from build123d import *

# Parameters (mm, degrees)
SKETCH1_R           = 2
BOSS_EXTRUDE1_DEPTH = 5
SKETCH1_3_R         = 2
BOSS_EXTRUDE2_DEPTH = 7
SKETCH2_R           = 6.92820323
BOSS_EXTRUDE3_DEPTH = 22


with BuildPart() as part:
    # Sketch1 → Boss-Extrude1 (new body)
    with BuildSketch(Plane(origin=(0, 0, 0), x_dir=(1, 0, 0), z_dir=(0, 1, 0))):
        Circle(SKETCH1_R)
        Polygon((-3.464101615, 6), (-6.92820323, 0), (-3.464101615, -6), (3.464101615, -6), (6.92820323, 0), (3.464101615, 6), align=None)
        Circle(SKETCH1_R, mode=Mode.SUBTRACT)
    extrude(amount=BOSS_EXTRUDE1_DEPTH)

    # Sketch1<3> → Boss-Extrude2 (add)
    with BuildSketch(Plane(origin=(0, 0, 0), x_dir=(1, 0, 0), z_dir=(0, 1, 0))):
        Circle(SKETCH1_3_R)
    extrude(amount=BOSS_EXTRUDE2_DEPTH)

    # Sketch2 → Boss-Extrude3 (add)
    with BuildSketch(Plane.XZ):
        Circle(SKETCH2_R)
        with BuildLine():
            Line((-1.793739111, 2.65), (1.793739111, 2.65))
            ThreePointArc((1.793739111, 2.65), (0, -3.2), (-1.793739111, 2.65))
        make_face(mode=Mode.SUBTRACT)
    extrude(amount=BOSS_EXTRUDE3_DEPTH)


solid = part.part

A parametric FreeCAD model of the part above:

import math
import FreeCAD as App
import Part
import Sketcher
Q = App.Units.Quantity


def add_polygon(sketch, points):
    """Adds a closed chain of lines whose ends are joined by coincident constraints."""
    first, n = sketch.GeometryCount, len(points)
    for a, b in zip(points, points[1:] + points[:1]):
        sketch.addGeometry(Part.LineSegment(App.Vector(*a, 0), App.Vector(*b, 0)), False)
    for i in range(n):
        sketch.addConstraint(Sketcher.Constraint("Coincident", first + i, 2, first + (i + 1) % n, 1))

doc = App.newDocument("Part")
body = doc.addObject("PartDesign::Body", "Body")

# Sketch on XZ plane
sketch1 = body.newObject("Sketcher::SketchObject", "Sketch")
sketch1.AttachmentSupport = (doc.getObject("XZ_Plane"), [""])
sketch1.MapMode = "FlatFace"
add_polygon(sketch1, [(-3.5, -6), (-6.9, 0), (-3.5, 6), (3.5, 6), (6.9, 0), (3.5, -6)])  # lines 0-5
sketch1.addGeometry(Part.Circle(App.Vector(0, 0, 0), App.Vector(0, 0, 1), 2), False)  # 6
sketch1.addConstraint(Sketcher.Constraint("Horizontal", 2))
sketch1.addConstraint(Sketcher.Constraint("Horizontal", 5))
sketch1.addConstraint(Sketcher.Constraint("Coincident", 6, 3, -1, 1))
sketch1.addConstraint(Sketcher.Constraint("Symmetric", 0, 2, 3, 2, -1, 1))
sketch1.addConstraint(Sketcher.Constraint("Symmetric", 1, 2, 4, 2, -1, 1))
sketch1.addConstraint(Sketcher.Constraint("PointOnObject", 0, 2, -1))
sketch1.addConstraint(Sketcher.Constraint("Parallel", 0, 3))
sketch1.addConstraint(Sketcher.Constraint("Vertical", 2, 2, 4, 2))
sketch1.addConstraint(Sketcher.Constraint("Diameter", 6, Q("4 mm")))
sketch1.addConstraint(Sketcher.Constraint("Angle", 0, Q("120 deg")))
sketch1.addConstraint(Sketcher.Constraint("DistanceY", -1, 1, 1, 2, Q("6 mm")))
sketch1.addConstraint(Sketcher.Constraint("DistanceX", 1, 2, -1, 1, Q("3.464102 mm")))
pad1 = body.newObject("PartDesign::Pad", "Pad")
pad1.Profile = sketch1
pad1.Length = 5
pad1.Reversed = True

# Sketch on XZ plane
sketch2 = body.newObject("Sketcher::SketchObject", "Sketch001")
sketch2.AttachmentSupport = (doc.getObject("XZ_Plane"), [""])
sketch2.MapMode = "FlatFace"
sketch2.addGeometry(Part.Circle(App.Vector(0, 0, 0), App.Vector(0, 0, 1), 2), False)
sketch2.addConstraint(Sketcher.Constraint("Coincident", 0, 3, -1, 1))
sketch2.addConstraint(Sketcher.Constraint("Diameter", 0, Q("4 mm")))
pad2 = body.newObject("PartDesign::Pad", "Pad001")
pad2.Profile = sketch2
pad2.Length = 7
pad2.Reversed = True

# Sketch on XZ plane
sketch3 = body.newObject("Sketcher::SketchObject", "Sketch002")
sketch3.AttachmentSupport = (doc.getObject("XZ_Plane"), [""])
sketch3.MapMode = "FlatFace"
sketch3.addGeometry(Part.Circle(App.Vector(0, 0, 0), App.Vector(0, 0, 1), 6.9), False)
sketch3.addGeometry(Part.ArcOfCircle(Part.Circle(App.Vector(0, 0, 0), App.Vector(0, 0, 1), 3.2), math.radians(124), math.radians(416)), False)
sketch3.addGeometry(Part.LineSegment(App.Vector(-1.8, 2.6, 0), App.Vector(1.8, 2.6, 0)), False)
sketch3.addConstraint(Sketcher.Constraint("Coincident", 1, 1, 2, 1))
sketch3.addConstraint(Sketcher.Constraint("Coincident", 2, 2, 1, 2))
sketch3.addConstraint(Sketcher.Constraint("Horizontal", 2))
sketch3.addConstraint(Sketcher.Constraint("Coincident", 0, 3, -1, 1))
sketch3.addConstraint(Sketcher.Constraint("Coincident", 1, 3, -1, 1))
sketch3.addConstraint(Sketcher.Constraint("Radius", 1, Q("3.2 mm")))
sketch3.addConstraint(Sketcher.Constraint("DistanceY", -1, 1, 1, 1, Q("2.65 mm")))
sketch3.addConstraint(Sketcher.Constraint("Diameter", 0, Q("13.856406 mm")))
pad3 = body.newObject("PartDesign::Pad", "Pad002")
pad3.Profile = sketch3
pad3.Length = 22

doc.recompute()
